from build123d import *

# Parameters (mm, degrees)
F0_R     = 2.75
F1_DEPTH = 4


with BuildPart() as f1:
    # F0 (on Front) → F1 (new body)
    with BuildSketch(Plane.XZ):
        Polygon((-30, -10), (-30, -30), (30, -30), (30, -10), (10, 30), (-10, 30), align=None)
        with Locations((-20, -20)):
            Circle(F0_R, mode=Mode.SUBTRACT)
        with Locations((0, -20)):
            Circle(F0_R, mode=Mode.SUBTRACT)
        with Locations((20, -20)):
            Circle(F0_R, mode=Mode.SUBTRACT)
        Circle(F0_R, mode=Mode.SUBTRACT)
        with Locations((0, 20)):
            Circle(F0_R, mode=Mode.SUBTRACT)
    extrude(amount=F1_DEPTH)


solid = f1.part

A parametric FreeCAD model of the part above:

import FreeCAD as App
import Part
import Sketcher
Q = App.Units.Quantity

doc = App.newDocument("Part")
body = doc.addObject("PartDesign::Body", "Body")

sketch1 = body.newObject("Sketcher::SketchObject", "Sketch")
sketch1.AttachmentSupport = (doc.getObject("XZ_Plane"), [""])
sketch1.MapMode = "FlatFace"
sketch1.addGeometry(Part.LineSegment(App.Vector(-30, -10, 0), App.Vector(-30, -30, 0)), False)
sketch1.addGeometry(Part.LineSegment(App.Vector(-30, -30, 0), App.Vector(30, -30, 0)), False)
sketch1.addGeometry(Part.LineSegment(App.Vector(30, -30, 0), App.Vector(30, -10, 0)), False)
sketch1.addGeometry(Part.LineSegment(App.Vector(30, -10, 0), App.Vector(10, 30, 0)), False)
sketch1.addGeometry(Part.LineSegment(App.Vector(10, 30, 0), App.Vector(-10, 30, 0)), False)
sketch1.addGeometry(Part.LineSegment(App.Vector(-10, 30, 0), App.Vector(-30, -10, 0)), False)
sketch1.addGeometry(Part.Circle(App.Vector(-20, -20, 0), App.Vector(0, 0, 1), 2.8), False)
sketch1.addGeometry(Part.Circle(App.Vector(0, -20, 0), App.Vector(0, 0, 1), 2.8), False)
sketch1.addGeometry(Part.Circle(App.Vector(20, -20, 0), App.Vector(0, 0, 1), 2.8), False)
sketch1.addGeometry(Part.Circle(App.Vector(0, 0, 0), App.Vector(0, 0, 1), 2.8), False)
sketch1.addGeometry(Part.Circle(App.Vector(0, 20, 0), App.Vector(0, 0, 1), 2.8), False)
sketch1.addConstraint(Sketcher.Constraint("Coincident", 0, 2, 1, 1))
sketch1.addConstraint(Sketcher.Constraint("Coincident", 1, 2, 2, 1))
sketch1.addConstraint(Sketcher.Constraint("Coincident", 2, 2, 3, 1))
sketch1.addConstraint(Sketcher.Constraint("Coincident", 3, 2, 4, 1))
sketch1.addConstraint(Sketcher.Constraint("Coincident", 4, 2, 5, 1))
sketch1.addConstraint(Sketcher.Constraint("Coincident", 5, 2, 0, 1))
sketch1.addConstraint(Sketcher.Constraint("Vertical", 0))
sketch1.addConstraint(Sketcher.Constraint("Horizontal", 1))
sketch1.addConstraint(Sketcher.Constraint("Vertical", 2))
sketch1.addConstraint(Sketcher.Constraint("Horizontal", 4))
sketch1.addConstraint(Sketcher.Constraint("Coincident", 9, 3, -1, 1))
sketch1.addConstraint(Sketcher.Constraint("Equal", 6, 7))
sketch1.addConstraint(Sketcher.Constraint("Equal", 7, 8))
sketch1.addConstraint(Sketcher.Constraint("Equal", 8, 9))
sketch1.addConstraint(Sketcher.Constraint("Equal", 9, 10))
sketch1.addConstraint(Sketcher.Constraint("Symmetric", 7, 3, 10, 3, -1, 1))
sketch1.addConstraint(Sketcher.Constraint("Symmetric", 6, 3, 8, 3, -2))
sketch1.addConstraint(Sketcher.Constraint("Symmetric", 2, 2, 5, 2, -2))
sketch1.addConstraint(Sketcher.Constraint("PointOnObject", 7, 3, -2))
sketch1.addConstraint(Sketcher.Constraint("Horizontal", 6, 3, 7, 3))
sketch1.addConstraint(Sketcher.Constraint("Equal", 4, 0))
sketch1.addConstraint(Sketcher.Constraint("Equal", 3, 5))
sketch1.addConstraint(Sketcher.Constraint("Diameter", 6, Q("5.5 mm")))
sketch1.addConstraint(Sketcher.Constraint("DistanceX", 1, 1, 1, 2, Q("60 mm")))
sketch1.addConstraint(Sketcher.Constraint("DistanceX", 4, 2, 4, 1, Q("20 mm")))
sketch1.addConstraint(Sketcher.Constraint("DistanceX", 6, 3, -1, 1, Q("20 mm")))
sketch1.addConstraint(Sketcher.Constraint("DistanceY", 6, 3, -1, 1, Q("20 mm")))
sketch1.addConstraint(Sketcher.Constraint("DistanceY", 0, 2, -1, 1, Q("30 mm")))
sketch1.addConstraint(Sketcher.Constraint("DistanceY", -1, 1, 3, 2, Q("30 mm")))
pad1 = body.newObject("PartDesign::Pad", "Pad")
pad1.Profile = sketch1
pad1.Length = 4

doc.recompute()
